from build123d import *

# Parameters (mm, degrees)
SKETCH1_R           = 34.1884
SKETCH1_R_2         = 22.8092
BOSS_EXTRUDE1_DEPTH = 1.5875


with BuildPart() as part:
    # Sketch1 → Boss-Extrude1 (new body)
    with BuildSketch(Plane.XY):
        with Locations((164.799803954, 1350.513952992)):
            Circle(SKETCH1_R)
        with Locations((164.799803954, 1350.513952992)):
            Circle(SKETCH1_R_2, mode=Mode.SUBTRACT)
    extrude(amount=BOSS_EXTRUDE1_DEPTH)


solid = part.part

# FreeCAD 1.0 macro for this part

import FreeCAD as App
import Part
import Sketcher
Q = App.Units.Quantity

doc = App.newDocument("Part")
params = doc.addObject("Spreadsheet::Sheet", "Params")
for row, (alias, value) in enumerate([
    ("sketch1_diameter", "2.692 in"),
    ("sketch1_diameter2", "1.796 in"),
    ("pad1_length", "0.0625 in"),
], start=1):
    params.set(f"A{row}", alias)
    params.set(f"B{row}", "=" + value)
    params.setAlias(f"B{row}", alias)

body = doc.addObject("PartDesign::Body", "Body")

# Sketch on XY plane
sketch1 = body.newObject("Sketcher::SketchObject", "Sketch")
sketch1.AttachmentSupport = (doc.getObject("XY_Plane"), [""])
sketch1.MapMode = "FlatFace"
sketch1.addGeometry([
    Part.Circle(App.Vector(165, 1351, 0), App.Vector(0, 0, 1), 34),
    Part.Circle(App.Vector(165, 1351, 0), App.Vector(0, 0, 1), 23),
], False)
sketch1.addConstraint([
    Sketcher.Constraint("Coincident", 1, 3, 0, 3),
    Sketcher.Constraint("Diameter", 0, Q("2.692 in")),
    Sketcher.Constraint("Diameter", 1, Q("1.796 in")),
    Sketcher.Constraint("DistanceX", -1, 1, 0, 3, Q("164.799804 mm")),
    Sketcher.Constraint("DistanceY", -1, 1, 0, 3, Q("1350.513953 mm")),
])
sketch1.setExpression("Constraints[1]", "Params.sketch1_diameter")
sketch1.setExpression("Constraints[2]", "Params.sketch1_diameter2")
pad1 = body.newObject("PartDesign::Pad", "Pad")
pad1.Profile = sketch1
pad1.setExpression("Length", "Params.pad1_length")

doc.recompute()
